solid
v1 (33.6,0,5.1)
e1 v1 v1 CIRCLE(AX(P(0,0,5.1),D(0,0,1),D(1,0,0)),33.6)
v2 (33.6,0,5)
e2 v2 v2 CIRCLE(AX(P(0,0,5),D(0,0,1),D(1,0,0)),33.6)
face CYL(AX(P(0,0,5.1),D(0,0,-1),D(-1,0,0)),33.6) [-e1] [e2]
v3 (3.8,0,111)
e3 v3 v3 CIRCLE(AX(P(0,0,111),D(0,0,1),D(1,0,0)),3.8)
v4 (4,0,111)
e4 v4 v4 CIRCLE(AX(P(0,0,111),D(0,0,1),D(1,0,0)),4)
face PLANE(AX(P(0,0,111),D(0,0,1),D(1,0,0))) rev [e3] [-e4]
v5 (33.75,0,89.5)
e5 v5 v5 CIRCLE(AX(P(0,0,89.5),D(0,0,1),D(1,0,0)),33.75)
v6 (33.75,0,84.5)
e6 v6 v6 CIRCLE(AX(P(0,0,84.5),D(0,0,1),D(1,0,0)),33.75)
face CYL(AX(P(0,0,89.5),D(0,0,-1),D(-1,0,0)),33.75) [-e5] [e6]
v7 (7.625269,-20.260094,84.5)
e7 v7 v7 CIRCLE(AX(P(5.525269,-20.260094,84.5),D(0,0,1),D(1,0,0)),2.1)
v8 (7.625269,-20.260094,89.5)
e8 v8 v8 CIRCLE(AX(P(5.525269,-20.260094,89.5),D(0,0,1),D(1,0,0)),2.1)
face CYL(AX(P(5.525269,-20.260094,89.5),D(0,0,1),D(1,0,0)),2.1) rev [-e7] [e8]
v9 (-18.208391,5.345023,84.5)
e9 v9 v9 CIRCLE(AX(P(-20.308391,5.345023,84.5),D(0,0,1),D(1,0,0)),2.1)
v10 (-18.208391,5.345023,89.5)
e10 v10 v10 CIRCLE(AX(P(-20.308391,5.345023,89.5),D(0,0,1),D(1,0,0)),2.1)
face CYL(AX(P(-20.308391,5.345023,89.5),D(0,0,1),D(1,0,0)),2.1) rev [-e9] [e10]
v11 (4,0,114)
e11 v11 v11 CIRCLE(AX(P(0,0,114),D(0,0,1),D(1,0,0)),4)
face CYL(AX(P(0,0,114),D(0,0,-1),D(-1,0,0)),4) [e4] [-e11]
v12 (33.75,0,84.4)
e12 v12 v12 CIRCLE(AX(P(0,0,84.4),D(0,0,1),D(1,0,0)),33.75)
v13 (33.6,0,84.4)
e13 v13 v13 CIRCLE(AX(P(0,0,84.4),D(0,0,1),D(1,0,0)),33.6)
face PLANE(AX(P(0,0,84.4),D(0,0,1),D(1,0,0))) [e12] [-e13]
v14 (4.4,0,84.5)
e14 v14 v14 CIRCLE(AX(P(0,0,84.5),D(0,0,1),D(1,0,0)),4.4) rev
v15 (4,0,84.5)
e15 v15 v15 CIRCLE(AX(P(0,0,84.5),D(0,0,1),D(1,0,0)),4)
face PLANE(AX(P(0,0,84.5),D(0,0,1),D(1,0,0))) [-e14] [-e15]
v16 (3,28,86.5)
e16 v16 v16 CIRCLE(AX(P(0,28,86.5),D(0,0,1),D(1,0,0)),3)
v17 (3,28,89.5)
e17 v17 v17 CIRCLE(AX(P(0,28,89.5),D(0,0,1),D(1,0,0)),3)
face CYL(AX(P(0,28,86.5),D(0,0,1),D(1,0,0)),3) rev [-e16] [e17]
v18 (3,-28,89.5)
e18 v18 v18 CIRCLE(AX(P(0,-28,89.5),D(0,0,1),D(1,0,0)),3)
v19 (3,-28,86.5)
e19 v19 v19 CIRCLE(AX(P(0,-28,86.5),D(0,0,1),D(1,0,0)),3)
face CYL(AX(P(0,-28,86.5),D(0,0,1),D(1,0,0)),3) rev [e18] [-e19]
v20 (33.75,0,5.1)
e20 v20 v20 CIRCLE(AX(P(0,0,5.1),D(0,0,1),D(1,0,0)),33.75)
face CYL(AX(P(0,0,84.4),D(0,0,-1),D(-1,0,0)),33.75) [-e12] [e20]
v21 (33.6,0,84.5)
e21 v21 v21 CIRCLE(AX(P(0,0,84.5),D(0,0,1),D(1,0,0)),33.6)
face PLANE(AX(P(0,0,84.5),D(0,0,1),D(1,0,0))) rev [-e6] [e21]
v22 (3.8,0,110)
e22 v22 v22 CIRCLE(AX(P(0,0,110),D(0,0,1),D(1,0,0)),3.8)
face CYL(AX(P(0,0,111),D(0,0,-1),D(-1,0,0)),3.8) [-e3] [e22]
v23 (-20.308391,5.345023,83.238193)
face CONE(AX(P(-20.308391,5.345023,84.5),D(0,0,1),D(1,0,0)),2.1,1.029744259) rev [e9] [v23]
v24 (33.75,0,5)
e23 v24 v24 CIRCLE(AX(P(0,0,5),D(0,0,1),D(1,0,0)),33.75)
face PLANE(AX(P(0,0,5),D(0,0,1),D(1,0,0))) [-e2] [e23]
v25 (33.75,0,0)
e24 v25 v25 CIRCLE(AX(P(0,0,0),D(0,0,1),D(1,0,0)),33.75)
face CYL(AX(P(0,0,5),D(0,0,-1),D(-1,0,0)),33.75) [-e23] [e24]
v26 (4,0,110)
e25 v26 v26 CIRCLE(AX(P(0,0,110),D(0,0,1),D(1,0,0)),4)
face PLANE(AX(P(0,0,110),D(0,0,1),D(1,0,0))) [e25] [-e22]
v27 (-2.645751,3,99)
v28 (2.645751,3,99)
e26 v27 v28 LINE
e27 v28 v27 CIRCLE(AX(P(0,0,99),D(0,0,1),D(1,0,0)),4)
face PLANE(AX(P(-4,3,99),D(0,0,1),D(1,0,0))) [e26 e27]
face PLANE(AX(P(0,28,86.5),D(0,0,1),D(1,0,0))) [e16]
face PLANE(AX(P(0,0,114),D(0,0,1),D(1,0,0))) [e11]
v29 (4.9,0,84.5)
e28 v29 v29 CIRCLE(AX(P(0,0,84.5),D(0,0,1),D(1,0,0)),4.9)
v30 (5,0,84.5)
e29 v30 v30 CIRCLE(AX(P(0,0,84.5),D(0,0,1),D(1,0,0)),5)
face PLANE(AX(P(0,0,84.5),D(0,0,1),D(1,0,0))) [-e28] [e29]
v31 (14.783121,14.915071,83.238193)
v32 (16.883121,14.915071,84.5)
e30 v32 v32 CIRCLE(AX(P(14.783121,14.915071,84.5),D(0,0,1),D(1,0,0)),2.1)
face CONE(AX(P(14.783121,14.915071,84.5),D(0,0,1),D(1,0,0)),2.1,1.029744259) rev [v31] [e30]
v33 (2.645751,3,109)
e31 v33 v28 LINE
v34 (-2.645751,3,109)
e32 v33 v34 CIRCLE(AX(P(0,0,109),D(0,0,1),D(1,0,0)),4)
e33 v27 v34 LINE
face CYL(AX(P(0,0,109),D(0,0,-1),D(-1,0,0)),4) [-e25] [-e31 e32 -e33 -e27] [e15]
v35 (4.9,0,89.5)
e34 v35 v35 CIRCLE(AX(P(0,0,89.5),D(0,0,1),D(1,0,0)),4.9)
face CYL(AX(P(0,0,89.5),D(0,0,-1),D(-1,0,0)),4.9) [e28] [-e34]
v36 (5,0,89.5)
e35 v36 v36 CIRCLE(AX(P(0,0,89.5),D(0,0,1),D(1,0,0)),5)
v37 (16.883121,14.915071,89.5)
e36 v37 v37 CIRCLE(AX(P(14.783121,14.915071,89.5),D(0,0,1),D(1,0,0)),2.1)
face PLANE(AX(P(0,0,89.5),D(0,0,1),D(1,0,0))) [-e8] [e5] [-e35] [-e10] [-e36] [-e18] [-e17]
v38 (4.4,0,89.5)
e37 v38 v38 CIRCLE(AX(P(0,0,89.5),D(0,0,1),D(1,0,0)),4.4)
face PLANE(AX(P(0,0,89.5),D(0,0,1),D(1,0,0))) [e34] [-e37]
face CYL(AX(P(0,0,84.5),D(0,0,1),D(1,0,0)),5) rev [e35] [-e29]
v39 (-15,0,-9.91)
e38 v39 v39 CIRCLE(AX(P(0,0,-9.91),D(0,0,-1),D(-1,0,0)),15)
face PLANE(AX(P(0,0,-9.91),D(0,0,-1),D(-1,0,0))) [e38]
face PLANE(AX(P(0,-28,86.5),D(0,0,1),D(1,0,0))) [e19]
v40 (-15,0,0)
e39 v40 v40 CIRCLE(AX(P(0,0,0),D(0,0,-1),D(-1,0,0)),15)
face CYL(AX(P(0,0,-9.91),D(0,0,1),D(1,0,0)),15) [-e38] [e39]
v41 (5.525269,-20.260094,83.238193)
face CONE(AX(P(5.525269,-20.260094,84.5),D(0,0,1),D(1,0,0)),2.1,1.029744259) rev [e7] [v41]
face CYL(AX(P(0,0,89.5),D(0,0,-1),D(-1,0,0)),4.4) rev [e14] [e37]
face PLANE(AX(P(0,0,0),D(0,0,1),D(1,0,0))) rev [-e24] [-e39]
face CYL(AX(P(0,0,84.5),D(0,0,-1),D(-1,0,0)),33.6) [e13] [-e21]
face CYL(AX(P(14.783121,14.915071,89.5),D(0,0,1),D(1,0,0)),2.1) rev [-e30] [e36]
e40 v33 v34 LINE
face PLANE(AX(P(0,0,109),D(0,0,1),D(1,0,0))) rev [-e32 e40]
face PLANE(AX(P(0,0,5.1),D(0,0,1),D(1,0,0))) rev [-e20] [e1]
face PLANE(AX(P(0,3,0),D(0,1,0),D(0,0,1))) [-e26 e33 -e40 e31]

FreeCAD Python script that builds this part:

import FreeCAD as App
import Part
import Sketcher
Q = App.Units.Quantity

doc = App.newDocument("Part")
body = doc.addObject("PartDesign::Body", "Body")

sketch1 = body.newObject("Sketcher::SketchObject", "Sketch")
sketch1.AttachmentSupport = (doc.getObject("XY_Plane"), [""])
sketch1.MapMode = "FlatFace"
sketch1.addGeometry(Part.Circle(App.Vector(0, 0, 0), App.Vector(0, 0, 1), 34), False)
sketch1.addConstraint([
    Sketcher.Constraint("Coincident", 0, 3, -1, 1),
    Sketcher.Constraint("Diameter", 0, Q("67.5 mm")),
])
pad1 = body.newObject("PartDesign::Pad", "Pad")
pad1.Profile = sketch1
pad1.Length = 5

sketch2 = body.newObject("Sketcher::SketchObject", "Sketch001")
sketch2.AttachmentSupport = (doc.getObject("XY_Plane"), [""])
sketch2.MapMode = "FlatFace"
sketch2.AttachmentOffset = App.Placement(App.Vector(0, 0, 5), App.Rotation())
sketch2.addGeometry(Part.Circle(App.Vector(0, 0, 0), App.Vector(0, 0, 1), 34), False)
sketch2.addConstraint([
    Sketcher.Constraint("Coincident", 0, 3, -1, 1),
    Sketcher.Constraint("Diameter", 0, Q("67.2 mm")),
])
pad2 = body.newObject("PartDesign::Pad", "Pad001")
pad2.Profile = sketch2
pad2.Length = 0.1

sketch3 = body.newObject("Sketcher::SketchObject", "Sketch002")
sketch3.AttachmentSupport = (doc.getObject("XY_Plane"), [""])
sketch3.MapMode = "FlatFace"
sketch3.AttachmentOffset = App.Placement(App.Vector(0, 0, 5.1), App.Rotation())
sketch3.addGeometry(Part.Circle(App.Vector(0, 0, 0), App.Vector(0, 0, 1), 34), False)
sketch3.addConstraint([
    Sketcher.Constraint("Coincident", 0, 3, -1, 1),
    Sketcher.Constraint("Diameter", 0, Q("67.5 mm")),
])
pad3 = body.newObject("PartDesign::Pad", "Pad002")
pad3.Profile = sketch3
pad3.Length = 79.3

sketch4 = body.newObject("Sketcher::SketchObject", "Sketch003")
sketch4.AttachmentSupport = (doc.getObject("XY_Plane"), [""])
sketch4.MapMode = "FlatFace"
sketch4.AttachmentOffset = App.Placement(App.Vector(0, 0, 84.4), App.Rotation())
sketch4.addGeometry(Part.Circle(App.Vector(0, 0, 0), App.Vector(0, 0, 1), 34), False)
sketch4.addConstraint([
    Sketcher.Constraint("Coincident", 0, 3, -1, 1),
    Sketcher.Constraint("Diameter", 0, Q("67.2 mm")),
])
pad4 = body.newObject("PartDesign::Pad", "Pad003")
pad4.Profile = sketch4
pad4.Length = 0.1

sketch5 = body.newObject("Sketcher::SketchObject", "Sketch004")
sketch5.AttachmentSupport = (doc.getObject("XY_Plane"), [""])
sketch5.MapMode = "FlatFace"
sketch5.AttachmentOffset = App.Placement(App.Vector(0, 0, 84.5), App.Rotation())
sketch5.addGeometry(Part.Circle(App.Vector(0, 0, 0), App.Vector(0, 0, 1), 34), False)
sketch5.addConstraint([
    Sketcher.Constraint("Coincident", 0, 3, -1, 1),
    Sketcher.Constraint("Diameter", 0, Q("67.5 mm")),
])
pad5 = body.newObject("PartDesign::Pad", "Pad004")
pad5.Profile = sketch5
pad5.Length = 5

sketch6 = body.newObject("Sketcher::SketchObject", "Sketch005")
sketch6.AttachmentSupport = (doc.getObject("XY_Plane"), [""])
sketch6.MapMode = "FlatFace"
sketch6.AttachmentOffset = App.Placement(App.Vector(0, 0, 89.5), App.Rotation())
sketch6.addGeometry(Part.Circle(App.Vector(0, 0, 0), App.Vector(0, 0, 1), 5), False)
sketch6.addConstraint([
    Sketcher.Constraint("Coincident", 0, 3, -1, 1),
    Sketcher.Constraint("Diameter", 0, Q("10 mm")),
])
pocket1 = body.newObject("PartDesign::Pocket", "Pocket")
pocket1.Profile = sketch6
pocket1.Length = 5

sketch7 = body.newObject("Sketcher::SketchObject", "Sketch006")
sketch7.AttachmentSupport = (doc.getObject("XY_Plane"), [""])
sketch7.MapMode = "FlatFace"
sketch7.AttachmentOffset = App.Placement(App.Vector(0, 0, 84.5), App.Rotation())
sketch7.addGeometry([
    Part.Circle(App.Vector(0, 0, 0), App.Vector(0, 0, 1), 4.9),
    Part.Circle(App.Vector(0, 0, 0), App.Vector(0, 0, 1), 4.4),
], False)
sketch7.addConstraint([
    Sketcher.Constraint("Coincident", 0, 3, -1, 1),
    Sketcher.Constraint("Coincident", 1, 3, -1, 1),
    Sketcher.Constraint("Diameter", 0, Q("9.8 mm")),
    Sketcher.Constraint("Diameter", 1, Q("8.8 mm")),
])
pad6 = body.newObject("PartDesign::Pad", "Pad005")
pad6.Profile = sketch7
pad6.Length = 5

sketch8 = body.newObject("Sketcher::SketchObject", "Sketch007")
sketch8.AttachmentSupport = (doc.getObject("XY_Plane"), [""])
sketch8.MapMode = "FlatFace"
sketch8.AttachmentOffset = App.Placement(App.Vector(0, 0, 84.5), App.Rotation())
sketch8.addGeometry(Part.Circle(App.Vector(0, 0, 0), App.Vector(0, 0, 1), 4), False)
sketch8.addConstraint([
    Sketcher.Constraint("Coincident", 0, 3, -1, 1),
    Sketcher.Constraint("Diameter", 0, Q("8 mm")),
])
pad7 = body.newObject("PartDesign::Pad", "Pad006")
pad7.Profile = sketch8
pad7.Length = 24.5

sketch9 = body.newObject("Sketcher::SketchObject", "Sketch008")
sketch9.AttachmentSupport = (doc.getObject("XY_Plane"), [""])
sketch9.MapMode = "FlatFace"
sketch9.addGeometry(Part.Circle(App.Vector(0, 0, 0), App.Vector(0, 0, 1), 15), False)
sketch9.addConstraint([
    Sketcher.Constraint("Coincident", 0, 3, -1, 1),
    Sketcher.Constraint("Diameter", 0, Q("30 mm")),
])
pad8 = body.newObject("PartDesign::Pad", "Pad007")
pad8.Profile = sketch9
pad8.Length = 9.91
pad8.Reversed = True

sketch10 = body.newObject("Sketcher::SketchObject", "Sketch009")
sketch10.AttachmentSupport = (doc.getObject("XY_Plane"), [""])
sketch10.MapMode = "FlatFace"
sketch10.AttachmentOffset = App.Placement(App.Vector(0, 0, 89.5), App.Rotation())
sketch10.addGeometry([
    Part.Circle(App.Vector(-20.3, 5.3, 0), App.Vector(0, 0, 1), 2.1),
    Part.Circle(App.Vector(14.8, 14.9, 0), App.Vector(0, 0, 1), 2.1),
    Part.Circle(App.Vector(5.5, -20.3, 0), App.Vector(0, 0, 1), 2.1),
], False)
sketch10.addConstraint([
    Sketcher.Constraint("Equal", 0, 1),
    Sketcher.Constraint("Equal", 1, 2),
    Sketcher.Constraint("Diameter", 0, Q("4.2 mm")),
    Sketcher.Constraint("DistanceX", 0, 3, -1, 1, Q("20.308391 mm")),
    Sketcher.Constraint("DistanceX", -1, 1, 1, 3, Q("14.783121 mm")),
    Sketcher.Constraint("DistanceY", -1, 1, 1, 3, Q("14.915071 mm")),
    Sketcher.Constraint("DistanceX", -1, 1, 2, 3, Q("5.525269 mm")),
    Sketcher.Constraint("DistanceY", -1, 1, 0, 3, Q("5.345023 mm")),
    Sketcher.Constraint("DistanceY", 2, 3, -1, 1, Q("20.260094 mm")),
])
doc.recompute()
hole = body.newObject("PartDesign::Hole", "Hole")
hole.Profile = sketch10
hole.ThreadType = "None"
hole.Diameter = 4.2
hole.DepthType = "Dimension"
hole.Depth = 5
hole.DrillPoint = "Angled"
hole.DrillPointAngle = 118

sketch11 = body.newObject("Sketcher::SketchObject", "Sketch010")
sketch11.AttachmentSupport = (doc.getObject("XZ_Plane"), [""])
sketch11.MapMode = "FlatFace"
sketch11.AttachmentOffset = App.Placement(App.Vector(0, 0, -4), App.Rotation())
sketch11.addGeometry([
    Part.LineSegment(App.Vector(-4, 99, 0), App.Vector(-4, 109, 0)),
    Part.LineSegment(App.Vector(-4, 109, 0), App.Vector(4, 109, 0)),
    Part.LineSegment(App.Vector(4, 109, 0), App.Vector(4, 99, 0)),
    Part.LineSegment(App.Vector(4, 99, 0), App.Vector(-4, 99, 0)),
], False)
sketch11.addConstraint([
    Sketcher.Constraint("Coincident", 0, 2, 1, 1),
    Sketcher.Constraint("Coincident", 1, 2, 2, 1),
    Sketcher.Constraint("Coincident", 2, 2, 3, 1),
    Sketcher.Constraint("Coincident", 3, 2, 0, 1),
    Sketcher.Constraint("Vertical", 0),
    Sketcher.Constraint("Horizontal", 1),
    Sketcher.Constraint("Vertical", 2),
    Sketcher.Constraint("Horizontal", 3),
    Sketcher.Constraint("DistanceX", 1, 1, 1, 2, Q("8 mm")),
    Sketcher.Constraint("DistanceY", 0, 1, 0, 2, Q("10 mm")),
    Sketcher.Constraint("DistanceX", 0, 2, -1, 1, Q("4 mm")),
    Sketcher.Constraint("DistanceY", -1, 1, 0, 2, Q("109 mm")),
])
pocket2 = body.newObject("PartDesign::Pocket", "Pocket001")
pocket2.Profile = sketch11
pocket2.Length = 1
pocket2.Reversed = True

sketch12 = body.newObject("Sketcher::SketchObject", "Sketch011")
sketch12.AttachmentSupport = (doc.getObject("XY_Plane"), [""])
sketch12.MapMode = "FlatFace"
sketch12.AttachmentOffset = App.Placement(App.Vector(0, 0, 109), App.Rotation())
sketch12.addGeometry(Part.Circle(App.Vector(0, 0, 0), App.Vector(0, 0, 1), 4), False)
sketch12.addConstraint([
    Sketcher.Constraint("Coincident", 0, 3, -1, 1),
    Sketcher.Constraint("Diameter", 0, Q("8 mm")),
])
pad9 = body.newObject("PartDesign::Pad", "Pad008")
pad9.Profile = sketch12
pad9.Length = 1

sketch13 = body.newObject("Sketcher::SketchObject", "Sketch012")
sketch13.AttachmentSupport = (doc.getObject("XY_Plane"), [""])
sketch13.MapMode = "FlatFace"
sketch13.AttachmentOffset = App.Placement(App.Vector(0, 0, 110), App.Rotation())
sketch13.addGeometry(Part.Circle(App.Vector(0, 0, 0), App.Vector(0, 0, 1), 3.8), False)
sketch13.addConstraint([
    Sketcher.Constraint("Coincident", 0, 3, -1, 1),
    Sketcher.Constraint("Diameter", 0, Q("7.6 mm")),
])
pad10 = body.newObject("PartDesign::Pad", "Pad009")
pad10.Profile = sketch13
pad10.Length = 1

sketch14 = body.newObject("Sketcher::SketchObject", "Sketch013")
sketch14.AttachmentSupport = (doc.getObject("XY_Plane"), [""])
sketch14.MapMode = "FlatFace"
sketch14.AttachmentOffset = App.Placement(App.Vector(0, 0, 111), App.Rotation())
sketch14.addGeometry(Part.Circle(App.Vector(0, 0, 0), App.Vector(0, 0, 1), 4), False)
sketch14.addConstraint([
    Sketcher.Constraint("Coincident", 0, 3, -1, 1),
    Sketcher.Constraint("Diameter", 0, Q("8 mm")),
])
pad11 = body.newObject("PartDesign::Pad", "Pad010")
pad11.Profile = sketch14
pad11.Length = 3

sketch15 = body.newObject("Sketcher::SketchObject", "Sketch014")
sketch15.AttachmentSupport = (doc.getObject("XY_Plane"), [""])
sketch15.MapMode = "FlatFace"
sketch15.AttachmentOffset = App.Placement(App.Vector(0, 0, 89.5), App.Rotation())
sketch15.addGeometry([
    Part.Circle(App.Vector(0, 28, 0), App.Vector(0, 0, 1), 3),
    Part.Circle(App.Vector(0, -28, 0), App.Vector(0, 0, 1), 3),
], False)
sketch15.addConstraint([
    Sketcher.Constraint("Equal", 0, 1),
    Sketcher.Constraint("Symmetric", 0, 3, 1, 3, -1, 1),
    Sketcher.Constraint("PointOnObject", 0, 3, -2),
    Sketcher.Constraint("Diameter", 0, Q("6 mm")),
    Sketcher.Constraint("DistanceY", -1, 1, 0, 3, Q("28 mm")),
])
pocket3 = body.newObject("PartDesign::Pocket", "Pocket002")
pocket3.Profile = sketch15
pocket3.Length = 3

doc.recompute()
